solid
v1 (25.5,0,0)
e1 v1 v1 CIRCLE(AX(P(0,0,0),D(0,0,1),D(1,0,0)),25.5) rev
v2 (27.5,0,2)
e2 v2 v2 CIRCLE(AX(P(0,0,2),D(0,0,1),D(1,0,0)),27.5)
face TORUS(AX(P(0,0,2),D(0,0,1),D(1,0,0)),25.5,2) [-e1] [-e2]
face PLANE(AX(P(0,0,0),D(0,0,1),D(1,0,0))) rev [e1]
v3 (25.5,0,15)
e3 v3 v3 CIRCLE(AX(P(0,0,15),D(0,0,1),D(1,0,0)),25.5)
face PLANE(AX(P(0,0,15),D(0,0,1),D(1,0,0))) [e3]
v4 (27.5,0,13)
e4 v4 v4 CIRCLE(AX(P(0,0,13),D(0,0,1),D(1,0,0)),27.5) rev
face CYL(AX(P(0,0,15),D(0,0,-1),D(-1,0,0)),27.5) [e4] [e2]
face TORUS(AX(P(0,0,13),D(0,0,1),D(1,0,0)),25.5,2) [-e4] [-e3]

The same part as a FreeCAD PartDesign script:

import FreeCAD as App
import Part
import Sketcher

V = App.Vector


def edges_at(feature, points):
    """Names of the edges that pass closest to the given points."""
    edges = feature.Shape.Edges
    near = lambda p: min(range(len(edges)), key=lambda i: edges[i].distToShape(Part.Vertex(*p))[0])
    return sorted({f"Edge{near(p) + 1}" for p in points})

doc = App.newDocument("Part")
body = doc.addObject("PartDesign::Body", "Body")

sketch1 = body.newObject("Sketcher::SketchObject", "Sketch")
sketch1.AttachmentSupport = (doc.getObject("XY_Plane"), [""])
sketch1.MapMode = "FlatFace"
sketch1.addGeometry(Part.Circle(V(0, 0, 0), V(0, 0, 1), 27.5), False)
sketch1.addConstraint(Sketcher.Constraint("Coincident", 0, 3, -1, 1))
sketch1.addConstraint(Sketcher.Constraint("Diameter", 0, 55.0))
pad1 = body.newObject("PartDesign::Pad", "Pad")
pad1.Profile = sketch1
pad1.Length = 15
doc.recompute()

fillet = body.newObject("PartDesign::Fillet", "Fillet")
fillet.Base = (pad1, edges_at(pad1, [(-27.5, 0, 0), (-27.5, 0, 15)]))
fillet.Radius = 2

doc.recompute()
